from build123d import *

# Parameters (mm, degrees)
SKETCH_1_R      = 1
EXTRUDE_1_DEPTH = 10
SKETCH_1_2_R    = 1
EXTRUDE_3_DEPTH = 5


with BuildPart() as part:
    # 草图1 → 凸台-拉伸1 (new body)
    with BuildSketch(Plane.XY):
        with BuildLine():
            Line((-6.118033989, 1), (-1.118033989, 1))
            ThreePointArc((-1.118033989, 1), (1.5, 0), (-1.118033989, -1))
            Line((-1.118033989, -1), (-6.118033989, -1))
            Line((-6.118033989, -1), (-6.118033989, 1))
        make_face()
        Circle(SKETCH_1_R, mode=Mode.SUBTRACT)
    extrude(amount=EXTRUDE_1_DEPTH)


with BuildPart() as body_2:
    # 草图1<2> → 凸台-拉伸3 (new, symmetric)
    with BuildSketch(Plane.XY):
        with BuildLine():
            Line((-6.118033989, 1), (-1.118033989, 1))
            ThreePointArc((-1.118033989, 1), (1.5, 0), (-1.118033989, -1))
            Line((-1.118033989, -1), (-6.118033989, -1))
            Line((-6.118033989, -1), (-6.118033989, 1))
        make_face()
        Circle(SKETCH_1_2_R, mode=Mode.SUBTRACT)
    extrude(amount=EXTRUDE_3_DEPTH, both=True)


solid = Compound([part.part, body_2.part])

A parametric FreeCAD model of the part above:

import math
import FreeCAD as App
import Part
import Sketcher
from FreeCAD import Vector

doc = App.newDocument("Part")
body = doc.addObject("PartDesign::Body", "Body")

# Sketch on XY plane
sketch1 = body.newObject("Sketcher::SketchObject", "Sketch")
sketch1.AttachmentSupport = (doc.getObject("XY_Plane"), [""])
sketch1.MapMode = "FlatFace"
sketch1.addGeometry(Part.LineSegment(Vector(-1.118034, 1, 0), Vector(-6.118034, 1, 0)), False)
sketch1.addGeometry(Part.LineSegment(Vector(-6.118034, 1, 0), Vector(-6.118034, -1, 0)), False)
sketch1.addGeometry(Part.LineSegment(Vector(-6.118034, -1, 0), Vector(-1.118034, -1, 0)), False)
sketch1.addGeometry(Part.ArcOfCircle(Part.Circle(Vector(0, 0, 0), Vector(0, 0, 1), 1.5), math.radians(-138.189685), math.radians(138.189685)), False)
sketch1.addGeometry(Part.Circle(Vector(0, 0, 0), Vector(0, 0, 1), 1), False)
sketch1.addConstraint(Sketcher.Constraint("Coincident", 0, 2, 1, 1))
sketch1.addConstraint(Sketcher.Constraint("Coincident", 1, 2, 2, 1))
sketch1.addConstraint(Sketcher.Constraint("Coincident", 2, 2, 3, 1))
sketch1.addConstraint(Sketcher.Constraint("Coincident", 3, 2, 0, 1))
sketch1.addConstraint(Sketcher.Constraint("Horizontal", 0))
sketch1.addConstraint(Sketcher.Constraint("Vertical", 1))
sketch1.addConstraint(Sketcher.Constraint("Horizontal", 2))
sketch1.addConstraint(Sketcher.Constraint("Coincident", 3, 3, -1, 1))
sketch1.addConstraint(Sketcher.Constraint("Coincident", 4, 3, -1, 1))
sketch1.addConstraint(Sketcher.Constraint("Vertical", 2, 2, 3, 2))
sketch1.addConstraint(Sketcher.Constraint("Diameter", 4, 2.0))
sketch1.addConstraint(Sketcher.Constraint("Radius", 3, 1.5))
sketch1.addConstraint(Sketcher.Constraint("DistanceX", 0, 2, 0, 1, 5.0))
sketch1.addConstraint(Sketcher.Constraint("DistanceY", 1, 2, 1, 1, 2.0))
pad1 = body.newObject("PartDesign::Pad", "Pad")
pad1.Profile = sketch1
pad1.Length = 10
body2 = doc.addObject("PartDesign::Body", "Body001")

# Sketch on XY plane
sketch2 = body2.newObject("Sketcher::SketchObject", "Sketch001")
sketch2.AttachmentSupport = (doc.getObject("XY_Plane001"), [""])
sketch2.MapMode = "FlatFace"
sketch2.addGeometry(Part.LineSegment(Vector(-1.118034, 1, 0), Vector(-6.118034, 1, 0)), False)
sketch2.addGeometry(Part.LineSegment(Vector(-6.118034, 1, 0), Vector(-6.118034, -1, 0)), False)
sketch2.addGeometry(Part.LineSegment(Vector(-6.118034, -1, 0), Vector(-1.118034, -1, 0)), False)
sketch2.addGeometry(Part.ArcOfCircle(Part.Circle(Vector(0, 0, 0), Vector(0, 0, 1), 1.5), math.radians(-138.189685), math.radians(138.189685)), False)
sketch2.addGeometry(Part.Circle(Vector(0, 0, 0), Vector(0, 0, 1), 1), False)
sketch2.addConstraint(Sketcher.Constraint("Coincident", 0, 2, 1, 1))
sketch2.addConstraint(Sketcher.Constraint("Coincident", 1, 2, 2, 1))
sketch2.addConstraint(Sketcher.Constraint("Coincident", 2, 2, 3, 1))
sketch2.addConstraint(Sketcher.Constraint("Coincident", 3, 2, 0, 1))
sketch2.addConstraint(Sketcher.Constraint("Horizontal", 0))
sketch2.addConstraint(Sketcher.Constraint("Vertical", 1))
sketch2.addConstraint(Sketcher.Constraint("Horizontal", 2))
sketch2.addConstraint(Sketcher.Constraint("Coincident", 3, 3, -1, 1))
sketch2.addConstraint(Sketcher.Constraint("Coincident", 4, 3, -1, 1))
sketch2.addConstraint(Sketcher.Constraint("Vertical", 2, 2, 3, 2))
sketch2.addConstraint(Sketcher.Constraint("Diameter", 4, 2.0))
sketch2.addConstraint(Sketcher.Constraint("Radius", 3, 1.5))
sketch2.addConstraint(Sketcher.Constraint("DistanceX", 0, 2, 0, 1, 5.0))
sketch2.addConstraint(Sketcher.Constraint("DistanceY", 1, 2, 1, 1, 2.0))
pad2 = body2.newObject("PartDesign::Pad", "Pad001")
pad2.Profile = sketch2
pad2.Length = 10
pad2.Midplane = True

doc.recompute()
